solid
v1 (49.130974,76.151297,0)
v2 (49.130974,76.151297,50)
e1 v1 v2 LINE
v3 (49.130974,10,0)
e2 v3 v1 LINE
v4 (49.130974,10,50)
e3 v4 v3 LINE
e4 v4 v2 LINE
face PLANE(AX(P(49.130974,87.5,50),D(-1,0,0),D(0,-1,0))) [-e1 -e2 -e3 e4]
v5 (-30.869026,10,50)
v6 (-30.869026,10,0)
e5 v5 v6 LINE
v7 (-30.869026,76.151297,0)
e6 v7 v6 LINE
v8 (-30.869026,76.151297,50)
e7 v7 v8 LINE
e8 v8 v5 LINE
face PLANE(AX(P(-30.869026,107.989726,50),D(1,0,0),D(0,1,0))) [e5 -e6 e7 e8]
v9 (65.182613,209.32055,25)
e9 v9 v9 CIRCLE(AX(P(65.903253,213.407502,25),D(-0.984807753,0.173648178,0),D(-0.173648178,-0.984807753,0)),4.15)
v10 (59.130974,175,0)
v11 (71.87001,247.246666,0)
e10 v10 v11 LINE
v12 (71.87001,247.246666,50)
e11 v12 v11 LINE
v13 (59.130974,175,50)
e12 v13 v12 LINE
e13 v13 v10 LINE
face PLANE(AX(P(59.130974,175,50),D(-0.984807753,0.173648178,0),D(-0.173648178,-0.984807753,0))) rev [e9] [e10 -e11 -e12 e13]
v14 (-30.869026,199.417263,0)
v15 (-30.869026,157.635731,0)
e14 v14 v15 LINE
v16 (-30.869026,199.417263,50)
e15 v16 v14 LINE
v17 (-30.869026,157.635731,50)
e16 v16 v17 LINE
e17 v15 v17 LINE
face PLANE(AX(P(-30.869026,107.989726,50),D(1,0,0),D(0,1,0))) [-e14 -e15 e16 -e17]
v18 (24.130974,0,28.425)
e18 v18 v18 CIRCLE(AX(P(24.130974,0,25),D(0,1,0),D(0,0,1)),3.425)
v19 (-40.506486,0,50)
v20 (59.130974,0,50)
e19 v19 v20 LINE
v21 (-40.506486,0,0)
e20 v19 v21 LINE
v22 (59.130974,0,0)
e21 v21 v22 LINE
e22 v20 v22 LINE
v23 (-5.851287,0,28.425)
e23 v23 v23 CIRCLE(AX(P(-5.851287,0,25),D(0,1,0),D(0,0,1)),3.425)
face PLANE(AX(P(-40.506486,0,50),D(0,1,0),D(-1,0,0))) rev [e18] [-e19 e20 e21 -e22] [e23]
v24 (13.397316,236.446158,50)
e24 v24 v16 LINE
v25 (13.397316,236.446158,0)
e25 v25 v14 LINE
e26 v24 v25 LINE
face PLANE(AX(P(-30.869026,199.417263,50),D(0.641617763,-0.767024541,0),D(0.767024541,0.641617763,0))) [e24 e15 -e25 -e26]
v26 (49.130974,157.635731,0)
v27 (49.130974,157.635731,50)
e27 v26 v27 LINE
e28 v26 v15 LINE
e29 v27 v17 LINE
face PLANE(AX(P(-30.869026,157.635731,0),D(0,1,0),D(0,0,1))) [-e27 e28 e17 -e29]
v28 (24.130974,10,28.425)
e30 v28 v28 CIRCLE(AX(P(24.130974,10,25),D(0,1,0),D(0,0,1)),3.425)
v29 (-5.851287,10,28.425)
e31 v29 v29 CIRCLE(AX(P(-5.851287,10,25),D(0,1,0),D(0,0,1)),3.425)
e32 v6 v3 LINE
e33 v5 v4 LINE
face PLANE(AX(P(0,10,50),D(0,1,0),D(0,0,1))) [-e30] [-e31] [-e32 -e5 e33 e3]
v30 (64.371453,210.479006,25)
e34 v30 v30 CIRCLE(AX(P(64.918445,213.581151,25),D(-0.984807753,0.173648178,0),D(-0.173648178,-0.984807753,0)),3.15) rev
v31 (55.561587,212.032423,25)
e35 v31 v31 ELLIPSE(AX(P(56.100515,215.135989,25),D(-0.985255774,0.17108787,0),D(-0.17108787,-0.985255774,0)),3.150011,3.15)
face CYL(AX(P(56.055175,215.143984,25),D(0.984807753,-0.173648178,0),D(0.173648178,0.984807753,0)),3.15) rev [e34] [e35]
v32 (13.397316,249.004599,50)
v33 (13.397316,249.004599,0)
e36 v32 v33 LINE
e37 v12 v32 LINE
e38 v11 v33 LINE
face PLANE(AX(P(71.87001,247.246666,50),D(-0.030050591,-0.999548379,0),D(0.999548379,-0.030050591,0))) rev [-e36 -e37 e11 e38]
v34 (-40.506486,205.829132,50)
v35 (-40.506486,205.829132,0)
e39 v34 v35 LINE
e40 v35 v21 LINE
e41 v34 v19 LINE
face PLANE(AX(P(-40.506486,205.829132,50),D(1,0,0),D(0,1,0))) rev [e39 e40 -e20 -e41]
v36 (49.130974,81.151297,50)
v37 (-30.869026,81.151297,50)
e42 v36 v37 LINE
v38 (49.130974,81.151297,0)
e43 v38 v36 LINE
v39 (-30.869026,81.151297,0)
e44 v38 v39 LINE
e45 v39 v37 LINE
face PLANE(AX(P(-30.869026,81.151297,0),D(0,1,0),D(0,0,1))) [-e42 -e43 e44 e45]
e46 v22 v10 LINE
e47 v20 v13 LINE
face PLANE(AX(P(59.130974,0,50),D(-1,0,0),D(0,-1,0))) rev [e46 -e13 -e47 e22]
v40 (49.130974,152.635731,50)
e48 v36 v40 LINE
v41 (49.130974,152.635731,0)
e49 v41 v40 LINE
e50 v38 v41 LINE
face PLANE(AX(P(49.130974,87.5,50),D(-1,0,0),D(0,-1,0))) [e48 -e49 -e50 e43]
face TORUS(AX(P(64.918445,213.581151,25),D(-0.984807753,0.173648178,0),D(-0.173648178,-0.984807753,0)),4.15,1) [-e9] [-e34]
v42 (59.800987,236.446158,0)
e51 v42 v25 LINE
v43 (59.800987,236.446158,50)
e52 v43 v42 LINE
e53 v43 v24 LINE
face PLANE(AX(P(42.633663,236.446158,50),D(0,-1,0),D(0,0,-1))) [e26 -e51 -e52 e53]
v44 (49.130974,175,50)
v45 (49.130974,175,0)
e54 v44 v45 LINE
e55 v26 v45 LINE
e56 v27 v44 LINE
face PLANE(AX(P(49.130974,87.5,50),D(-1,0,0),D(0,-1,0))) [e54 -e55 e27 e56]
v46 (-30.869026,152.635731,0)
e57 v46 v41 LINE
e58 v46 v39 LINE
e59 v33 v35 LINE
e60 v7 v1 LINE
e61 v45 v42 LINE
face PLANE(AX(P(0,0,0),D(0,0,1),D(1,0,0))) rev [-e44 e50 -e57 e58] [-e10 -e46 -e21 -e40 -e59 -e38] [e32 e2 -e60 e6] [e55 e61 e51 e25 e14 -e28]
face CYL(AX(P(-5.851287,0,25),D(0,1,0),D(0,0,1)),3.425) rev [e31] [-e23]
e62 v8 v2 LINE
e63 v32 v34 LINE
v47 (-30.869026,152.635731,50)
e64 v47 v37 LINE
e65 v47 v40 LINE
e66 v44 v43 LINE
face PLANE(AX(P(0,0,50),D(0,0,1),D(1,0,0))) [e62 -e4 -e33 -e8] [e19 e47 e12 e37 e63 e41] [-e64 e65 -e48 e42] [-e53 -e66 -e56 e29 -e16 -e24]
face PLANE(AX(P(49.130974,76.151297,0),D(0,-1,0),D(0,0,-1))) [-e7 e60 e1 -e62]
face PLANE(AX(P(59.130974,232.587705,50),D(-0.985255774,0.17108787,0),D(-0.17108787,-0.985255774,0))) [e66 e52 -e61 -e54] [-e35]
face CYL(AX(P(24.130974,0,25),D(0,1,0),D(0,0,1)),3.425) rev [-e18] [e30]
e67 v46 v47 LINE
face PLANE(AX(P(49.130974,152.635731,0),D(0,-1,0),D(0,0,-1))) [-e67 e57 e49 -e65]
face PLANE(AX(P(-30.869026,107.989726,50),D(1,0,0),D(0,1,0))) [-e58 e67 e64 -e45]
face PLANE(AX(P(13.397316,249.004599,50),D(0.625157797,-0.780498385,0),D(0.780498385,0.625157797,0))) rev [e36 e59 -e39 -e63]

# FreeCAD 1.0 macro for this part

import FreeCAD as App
import Part
import Sketcher
from FreeCAD import Vector
Q = App.Units.Quantity


def edges_at(feature, points):
    """Names of the edges that pass closest to the given points."""
    edges = feature.Shape.Edges
    near = lambda p: min(range(len(edges)), key=lambda i: edges[i].distToShape(Part.Vertex(*p))[0])
    return sorted({f"Edge{near(p) + 1}" for p in points})

doc = App.newDocument("Part")
params = doc.addObject("Spreadsheet::Sheet", "Params")
for row, (alias, value) in enumerate([
    ("sketch1_width", "80 mm"),
    ("sketch1_height", "175 mm"),
    ("sketch1_height2", "165 mm"),
    ("pad1_length", "50 mm"),
    ("sketch2_diameter", "6.85 mm"),
    ("pocket1_length", "10 mm"),
    ("sketch3_width", "80 mm"),
    ("sketch3_height", "5 mm"),
    ("pad2_length", "50 mm"),
    ("sketch4_diameter", "6.3 mm"),
    ("pocket2_length", "10 mm"),
    ("fillet_radius", "1 mm"),
], start=1):
    params.set(f"A{row}", alias)
    params.set(f"B{row}", "=" + value)
    params.setAlias(f"B{row}", alias)

body = doc.addObject("PartDesign::Body", "Body")

# Sketch on XY plane
sketch1 = body.newObject("Sketcher::SketchObject", "Sketch")
sketch1.AttachmentSupport = (doc.getObject("XY_Plane"), [""])
sketch1.MapMode = "FlatFace"
sketch1.addGeometry([
    Part.LineSegment(Vector(-40.5, 0, 0), Vector(59.1, 0, 0)),  # 0
    Part.LineSegment(Vector(59.1, 0, 0), Vector(59.1, 175, 0)),  # 1
    Part.LineSegment(Vector(59.1, 175, 0), Vector(71.9, 247.2, 0)),  # 2
    Part.LineSegment(Vector(71.9, 247.2, 0), Vector(13.4, 249, 0)),  # 3
    Part.LineSegment(Vector(13.4, 249, 0), Vector(-40.5, 205.8, 0)),  # 4
    Part.LineSegment(Vector(-40.5, 205.8, 0), Vector(-40.5, 0, 0)),  # 5
    Part.LineSegment(Vector(59.8, 236.4, 0), Vector(59.1, 232.6, 0)),  # 6
    Part.LineSegment(Vector(59.1, 232.6, 0), Vector(49.1, 175, 0)),  # 7
    Part.LineSegment(Vector(49.1, 175, 0), Vector(49.1, 10, 0)),  # 8
    Part.LineSegment(Vector(49.1, 10, 0), Vector(-30.9, 10, 0)),  # 9
    Part.LineSegment(Vector(-30.9, 10, 0), Vector(-30.9, 199.4, 0)),  # 10
    Part.LineSegment(Vector(-30.9, 199.4, 0), Vector(6.3, 230.5, 0)),  # 11
    Part.LineSegment(Vector(6.3, 230.5, 0), Vector(13.4, 236.4, 0)),  # 12
    Part.LineSegment(Vector(13.4, 236.4, 0), Vector(59.8, 236.4, 0)),  # 13
], False)
sketch1.addConstraint([
    Sketcher.Constraint("Coincident", 0, 2, 1, 1),
    Sketcher.Constraint("Coincident", 1, 2, 2, 1),
    Sketcher.Constraint("Coincident", 2, 2, 3, 1),
    Sketcher.Constraint("Coincident", 3, 2, 4, 1),
    Sketcher.Constraint("Coincident", 4, 2, 5, 1),
    Sketcher.Constraint("Coincident", 5, 2, 0, 1),
    Sketcher.Constraint("Coincident", 6, 2, 7, 1),
    Sketcher.Constraint("Coincident", 7, 2, 8, 1),
    Sketcher.Constraint("Coincident", 8, 2, 9, 1),
    Sketcher.Constraint("Coincident", 9, 2, 10, 1),
    Sketcher.Constraint("Coincident", 10, 2, 11, 1),
    Sketcher.Constraint("Coincident", 11, 2, 12, 1),
    Sketcher.Constraint("Coincident", 12, 2, 13, 1),
    Sketcher.Constraint("Coincident", 13, 2, 6, 1),
    Sketcher.Constraint("Horizontal", 0),
    Sketcher.Constraint("Vertical", 1),
    Sketcher.Constraint("Vertical", 5),
    Sketcher.Constraint("Vertical", 8),
    Sketcher.Constraint("Horizontal", 9),
    Sketcher.Constraint("Vertical", 10),
    Sketcher.Constraint("Horizontal", 13),
    Sketcher.Constraint("PointOnObject", 0, 2, -1),
    Sketcher.Constraint("Parallel", 6, 7),
    Sketcher.Constraint("Parallel", 11, 12),
    Sketcher.Constraint("Horizontal", 1, 2, 7, 2),
    Sketcher.Constraint("Vertical", 1, 2, 6, 2),
    Sketcher.Constraint("Vertical", 3, 2, 12, 2),
    Sketcher.Constraint("DistanceX", 9, 2, 9, 1, Q("80 mm")),
    Sketcher.Constraint("DistanceY", 1, 1, 1, 2, Q("175 mm")),
    Sketcher.Constraint("DistanceY", 8, 2, 8, 1, Q("165 mm")),
    Sketcher.Constraint("Angle", 2, Q("80 deg")),
    Sketcher.Constraint("DistanceX", 7, 2, 1, 2, Q("10 mm")),
    Sketcher.Constraint("DistanceX", 0, 1, 0, 2, Q("99.63746 mm")),
    Sketcher.Constraint("DistanceX", 13, 1, 13, 2, Q("46.403672 mm")),
    Sketcher.Constraint("DistanceY", -1, 1, 3, 2, Q("249.004599 mm")),
    Sketcher.Constraint("DistanceX", 4, 2, 3, 2, Q("53.903802 mm")),
    Sketcher.Constraint("DistanceY", 4, 2, 11, 2, Q("24.6396 mm")),
    Sketcher.Constraint("Distance", 4, Q("69.06331 mm")),
    Sketcher.Constraint("Distance", 11, Q("48.395588 mm")),
    Sketcher.Constraint("Distance", 12, Q("9.316179 mm")),
    Sketcher.Constraint("DistanceX", -1, 1, 2, 2, Q("71.87001 mm")),
    Sketcher.Constraint("DistanceY", 6, 2, 2, 2, Q("14.658961 mm")),
])
sketch1.setExpression("Constraints[27]", "Params.sketch1_width")
sketch1.setExpression("Constraints[28]", "Params.sketch1_height")
sketch1.setExpression("Constraints[29]", "Params.sketch1_height2")
pad1 = body.newObject("PartDesign::Pad", "Pad")
pad1.Profile = sketch1
pad1.setExpression("Length", "Params.pad1_length")

# Sketch on XZ plane
sketch2 = body.newObject("Sketcher::SketchObject", "Sketch001")
sketch2.AttachmentSupport = (doc.getObject("XZ_Plane"), [""])
sketch2.MapMode = "FlatFace"
sketch2.AttachmentOffset = App.Placement(Vector(0, 0, -10), App.Rotation())
sketch2.addGeometry([
    Part.Circle(Vector(-5.9, 25, 0), Vector(0, 0, 1), 3.4),
    Part.Circle(Vector(24.1, 25, 0), Vector(0, 0, 1), 3.4),
], False)
sketch2.addConstraint([
    Sketcher.Constraint("Equal", 0, 1),
    Sketcher.Constraint("Horizontal", 0, 3, 1, 3),
    Sketcher.Constraint("Diameter", 0, Q("6.85 mm")),
    Sketcher.Constraint("DistanceY", -1, 1, 0, 3, Q("25 mm")),
    Sketcher.Constraint("DistanceX", 0, 3, 1, 3, Q("29.982261 mm")),
    Sketcher.Constraint("DistanceX", 0, 3, -1, 1, Q("5.851287 mm")),
])
sketch2.setExpression("Constraints[2]", "Params.sketch2_diameter")
pocket1 = body.newObject("PartDesign::Pocket", "Pocket")
pocket1.Profile = sketch2
pocket1.setExpression("Length", "Params.pocket1_length")
pocket1.Reversed = True

# Sketch on XY plane
sketch3 = body.newObject("Sketcher::SketchObject", "Sketch002")
sketch3.AttachmentSupport = (doc.getObject("XY_Plane"), [""])
sketch3.MapMode = "FlatFace"
sketch3.AttachmentOffset = App.Placement(Vector(0, 0, 50), App.Rotation())
sketch3.addGeometry([
    Part.LineSegment(Vector(-31, 158, 0), Vector(-31, 153, 0)),  # 0
    Part.LineSegment(Vector(-31, 153, 0), Vector(49, 153, 0)),  # 1
    Part.LineSegment(Vector(49, 153, 0), Vector(49, 158, 0)),  # 2
    Part.LineSegment(Vector(49, 158, 0), Vector(-31, 158, 0)),  # 3
    Part.LineSegment(Vector(-31, 81, 0), Vector(-31, 76, 0)),  # 4
    Part.LineSegment(Vector(-31, 76, 0), Vector(49, 76, 0)),  # 5
    Part.LineSegment(Vector(49, 76, 0), Vector(49, 81, 0)),  # 6
    Part.LineSegment(Vector(49, 81, 0), Vector(-31, 81, 0)),  # 7
], False)
sketch3.addConstraint([
    Sketcher.Constraint("Coincident", 0, 2, 1, 1),
    Sketcher.Constraint("Coincident", 1, 2, 2, 1),
    Sketcher.Constraint("Coincident", 2, 2, 3, 1),
    Sketcher.Constraint("Coincident", 3, 2, 0, 1),
    Sketcher.Constraint("Coincident", 4, 2, 5, 1),
    Sketcher.Constraint("Coincident", 5, 2, 6, 1),
    Sketcher.Constraint("Coincident", 6, 2, 7, 1),
    Sketcher.Constraint("Coincident", 7, 2, 4, 1),
    Sketcher.Constraint("Vertical", 0),
    Sketcher.Constraint("Horizontal", 1),
    Sketcher.Constraint("Vertical", 2),
    Sketcher.Constraint("Horizontal", 3),
    Sketcher.Constraint("Vertical", 4),
    Sketcher.Constraint("Horizontal", 5),
    Sketcher.Constraint("Vertical", 6),
    Sketcher.Constraint("Horizontal", 7),
    Sketcher.Constraint("Vertical", 3, 2, 4, 2),
    Sketcher.Constraint("Vertical", 2, 2, 5, 2),
    Sketcher.Constraint("Equal", 2, 4),
    Sketcher.Constraint("DistanceX", 1, 1, 1, 2, Q("80 mm")),
    Sketcher.Constraint("DistanceY", 0, 2, 0, 1, Q("5 mm")),
    Sketcher.Constraint("DistanceY", -1, 1, 0, 2, Q("152.635731 mm")),
    Sketcher.Constraint("DistanceX", 0, 2, -1, 1, Q("30.869026 mm")),
    Sketcher.Constraint("DistanceY", -1, 1, 4, 2, Q("76.151297 mm")),
])
sketch3.setExpression("Constraints[19]", "Params.sketch3_width")
sketch3.setExpression("Constraints[20]", "Params.sketch3_height")
pad2 = body.newObject("PartDesign::Pad", "Pad001")
pad2.Profile = sketch3
pad2.setExpression("Length", "Params.pad2_length")
pad2.Reversed = True

# Sketch on an angled plane
sketch4 = body.newObject("Sketcher::SketchObject", "Sketch003")
sketch4.Placement = App.Placement(Vector(27.421194, -4.835096, 0), App.Rotation(Vector(0, 0, -1), Vector(0.173648178, 0.984807753, 0), Vector(0.984807753, -0.173648178, 0), "ZXY"))
sketch4.addGeometry(Part.Circle(Vector(-25, 221.6, 0), Vector(0, 0, 1), 3.1), False)
sketch4.addConstraint([
    Sketcher.Constraint("Diameter", 0, Q("6.3 mm")),
    Sketcher.Constraint("DistanceX", 0, 3, -1, 1, Q("25 mm")),
    Sketcher.Constraint("DistanceY", -1, 1, 0, 3, Q("221.609343 mm")),
])
sketch4.setExpression("Constraints[0]", "Params.sketch4_diameter")
pocket2 = body.newObject("PartDesign::Pocket", "Pocket001")
pocket2.Profile = sketch4
pocket2.setExpression("Length", "Params.pocket2_length")
doc.recompute()

fillet = body.newObject("PartDesign::Fillet", "Fillet")
fillet.Base = (pocket2, edges_at(pocket2, [(65.903, 213.408, 28.15)]))
fillet.setExpression("Radius", "Params.fillet_radius")

doc.recompute()
